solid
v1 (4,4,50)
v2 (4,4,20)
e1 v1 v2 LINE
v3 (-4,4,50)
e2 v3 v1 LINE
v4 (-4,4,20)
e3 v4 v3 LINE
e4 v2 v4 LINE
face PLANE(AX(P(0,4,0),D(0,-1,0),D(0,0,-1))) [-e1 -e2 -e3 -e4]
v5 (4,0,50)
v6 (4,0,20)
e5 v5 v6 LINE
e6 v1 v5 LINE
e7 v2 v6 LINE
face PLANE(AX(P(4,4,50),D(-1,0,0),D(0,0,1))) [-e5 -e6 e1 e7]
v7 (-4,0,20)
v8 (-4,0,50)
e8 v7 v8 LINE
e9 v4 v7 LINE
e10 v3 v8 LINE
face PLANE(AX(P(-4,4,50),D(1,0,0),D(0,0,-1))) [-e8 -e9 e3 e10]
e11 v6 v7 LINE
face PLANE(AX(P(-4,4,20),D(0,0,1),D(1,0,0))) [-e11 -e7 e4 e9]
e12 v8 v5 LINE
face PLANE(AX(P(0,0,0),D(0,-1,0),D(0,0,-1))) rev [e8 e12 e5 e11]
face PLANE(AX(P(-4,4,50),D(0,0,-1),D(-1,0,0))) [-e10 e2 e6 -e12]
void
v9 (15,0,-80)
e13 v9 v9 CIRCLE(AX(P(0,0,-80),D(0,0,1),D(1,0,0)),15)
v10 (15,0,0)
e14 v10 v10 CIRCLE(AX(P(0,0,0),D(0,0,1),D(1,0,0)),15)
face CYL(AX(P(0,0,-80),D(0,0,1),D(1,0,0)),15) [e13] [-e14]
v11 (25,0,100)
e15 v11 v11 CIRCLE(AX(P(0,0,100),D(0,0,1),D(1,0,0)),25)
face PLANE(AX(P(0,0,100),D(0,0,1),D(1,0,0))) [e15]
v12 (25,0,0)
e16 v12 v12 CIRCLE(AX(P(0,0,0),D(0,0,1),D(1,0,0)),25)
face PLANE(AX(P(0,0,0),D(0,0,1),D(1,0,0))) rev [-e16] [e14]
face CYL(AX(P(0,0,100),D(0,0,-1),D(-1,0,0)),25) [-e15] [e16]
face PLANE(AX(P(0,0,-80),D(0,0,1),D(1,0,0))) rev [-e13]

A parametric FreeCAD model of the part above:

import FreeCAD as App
import Part
import Sketcher
from FreeCAD import Vector
Q = App.Units.Quantity


def add_polygon(sketch, points):
    """Adds a closed chain of lines whose ends are joined by coincident constraints."""
    first, n = sketch.GeometryCount, len(points)
    for a, b in zip(points, points[1:] + points[:1]):
        sketch.addGeometry(Part.LineSegment(App.Vector(*a, 0), App.Vector(*b, 0)), False)
    for i in range(n):
        sketch.addConstraint(Sketcher.Constraint("Coincident", first + i, 2, first + (i + 1) % n, 1))

doc = App.newDocument("Part")
body = doc.addObject("PartDesign::Body", "Body")

# Sketch on XY plane
sketch1 = doc.addObject("Sketcher::SketchObject", "Sketch")
body.addObject(sketch1)
sketch1.AttachmentSupport = (doc.XY_Plane, [""])
sketch1.MapMode = "FlatFace"
sketch1.addGeometry(Part.Circle(Vector(0, 0, 0), Vector(0, 0, 1), 25), False)
sketch1.addConstraint(Sketcher.Constraint("Coincident", 0, 3, -1, 1))
sketch1.addConstraint(Sketcher.Constraint("Diameter", 0, Q("50 mm")))
pad1 = doc.addObject("PartDesign::Pad", "Pad")
body.addObject(pad1)
pad1.Profile = sketch1
pad1.Length = 100

# Sketch on XY plane
sketch2 = doc.addObject("Sketcher::SketchObject", "Sketch001")
body.addObject(sketch2)
sketch2.AttachmentSupport = (doc.XY_Plane, [""])
sketch2.MapMode = "FlatFace"
sketch2.addGeometry(Part.Circle(Vector(0, 0, 0), Vector(0, 0, 1), 15), False)
sketch2.addConstraint(Sketcher.Constraint("Coincident", 0, 3, -1, 1))
sketch2.addConstraint(Sketcher.Constraint("Diameter", 0, Q("30 mm")))
pad2 = doc.addObject("PartDesign::Pad", "Pad001")
body.addObject(pad2)
pad2.Profile = sketch2
pad2.Length = 80
pad2.Reversed = True

# Sketch on XZ plane
sketch3 = doc.addObject("Sketcher::SketchObject", "Sketch002")
body.addObject(sketch3)
sketch3.AttachmentSupport = (doc.XZ_Plane, [""])
sketch3.MapMode = "FlatFace"
add_polygon(sketch3, [(-4, 20), (-4, 50), (4, 50), (4, 20)])  # lines 0-3
sketch3.addConstraint(Sketcher.Constraint("Vertical", 0))
sketch3.addConstraint(Sketcher.Constraint("Horizontal", 1))
sketch3.addConstraint(Sketcher.Constraint("Vertical", 2))
sketch3.addConstraint(Sketcher.Constraint("Horizontal", 3))
sketch3.addConstraint(Sketcher.Constraint("DistanceX", 1, 1, 1, 2, Q("8 mm")))
sketch3.addConstraint(Sketcher.Constraint("DistanceY", 0, 1, 0, 2, Q("30 mm")))
sketch3.addConstraint(Sketcher.Constraint("DistanceX", 0, 2, -1, 1, Q("4 mm")))
sketch3.addConstraint(Sketcher.Constraint("DistanceY", -1, 1, 0, 2, Q("50 mm")))
pocket1 = doc.addObject("PartDesign::Pocket", "Pocket")
body.addObject(pocket1)
pocket1.Profile = sketch3
pocket1.Length = 4

doc.recompute()
